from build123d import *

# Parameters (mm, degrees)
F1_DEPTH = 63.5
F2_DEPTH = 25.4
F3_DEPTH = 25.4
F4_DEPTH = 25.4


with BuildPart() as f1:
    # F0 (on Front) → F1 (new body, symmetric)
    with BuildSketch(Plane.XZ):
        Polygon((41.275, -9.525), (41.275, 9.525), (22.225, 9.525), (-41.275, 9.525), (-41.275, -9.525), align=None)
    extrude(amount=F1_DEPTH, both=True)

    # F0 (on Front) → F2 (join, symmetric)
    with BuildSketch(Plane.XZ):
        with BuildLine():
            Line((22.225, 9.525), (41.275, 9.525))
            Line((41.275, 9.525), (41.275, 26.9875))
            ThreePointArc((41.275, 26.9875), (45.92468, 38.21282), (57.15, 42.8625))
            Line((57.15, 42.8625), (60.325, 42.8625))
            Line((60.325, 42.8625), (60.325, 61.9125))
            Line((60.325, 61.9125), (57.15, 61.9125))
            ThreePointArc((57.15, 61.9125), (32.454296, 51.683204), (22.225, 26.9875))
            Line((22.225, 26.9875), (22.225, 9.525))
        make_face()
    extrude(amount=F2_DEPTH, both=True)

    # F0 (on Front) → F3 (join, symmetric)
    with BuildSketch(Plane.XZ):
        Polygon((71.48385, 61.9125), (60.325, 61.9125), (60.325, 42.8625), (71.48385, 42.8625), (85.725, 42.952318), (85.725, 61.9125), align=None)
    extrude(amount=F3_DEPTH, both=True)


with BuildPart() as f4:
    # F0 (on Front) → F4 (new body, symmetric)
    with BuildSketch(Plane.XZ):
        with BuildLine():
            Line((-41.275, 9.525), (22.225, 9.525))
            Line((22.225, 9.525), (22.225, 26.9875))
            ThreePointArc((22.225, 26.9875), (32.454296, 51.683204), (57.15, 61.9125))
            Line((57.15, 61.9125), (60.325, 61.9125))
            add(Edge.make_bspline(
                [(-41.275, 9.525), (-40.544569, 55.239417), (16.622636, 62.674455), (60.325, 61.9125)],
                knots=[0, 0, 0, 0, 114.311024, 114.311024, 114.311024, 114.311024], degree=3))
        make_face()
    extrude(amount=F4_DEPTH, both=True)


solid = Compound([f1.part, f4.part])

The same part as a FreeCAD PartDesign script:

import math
import FreeCAD as App
import Part
import Sketcher
from FreeCAD import Vector
Q = App.Units.Quantity

doc = App.newDocument("Part")
params = doc.addObject("Spreadsheet::Sheet", "Params")
for row, (alias, value) in enumerate([
    ("sketch1_width", "3.25 in"),
    ("sketch1_height", "0.75 in"),
    ("pad1_length", "5 in"),
    ("sketch2_radius", "0.625 in"),
    ("sketch2_radius2", "1.375 in"),
    ("sketch2_width", "0.125 in"),
    ("sketch2_height", "0.6875 in"),
    ("pad2_length", "2 in"),
    ("sketch3_width", "1 in"),
    ("sketch3_height", "0.75 in"),
    ("pad3_length", "2 in"),
    ("sketch4_width", "2.5 in"),
    ("sketch4_radius", "1.375 in"),
    ("pad4_length", "2 in"),
], start=1):
    params.set(f"A{row}", alias)
    params.set(f"B{row}", "=" + value)
    params.setAlias(f"B{row}", alias)

body = doc.addObject("PartDesign::Body", "Body")

# Sketch on XZ plane
sketch1 = body.newObject("Sketcher::SketchObject", "Sketch")
sketch1.AttachmentSupport = (doc.getObject("XZ_Plane"), [""])
sketch1.MapMode = "FlatFace"
sketch1.addGeometry([
    Part.LineSegment(Vector(41.275, -9.525, 0), Vector(41.275, 9.525, 0)),
    Part.LineSegment(Vector(41.275, 9.525, 0), Vector(-41.275, 9.525, 0)),
    Part.LineSegment(Vector(-41.275, 9.525, 0), Vector(-41.275, -9.525, 0)),
    Part.LineSegment(Vector(-41.275, -9.525, 0), Vector(41.275, -9.525, 0)),
], False)
sketch1.addConstraint([
    Sketcher.Constraint("Coincident", 0, 2, 1, 1),
    Sketcher.Constraint("Coincident", 1, 2, 2, 1),
    Sketcher.Constraint("Coincident", 2, 2, 3, 1),
    Sketcher.Constraint("Coincident", 3, 2, 0, 1),
    Sketcher.Constraint("Vertical", 0),
    Sketcher.Constraint("Horizontal", 1),
    Sketcher.Constraint("Vertical", 2),
    Sketcher.Constraint("Horizontal", 3),
    Sketcher.Constraint("Symmetric", 0, 2, 2, 2, -1, 1),
    Sketcher.Constraint("DistanceX", 1, 2, 1, 1, Q("3.25 in")),
    Sketcher.Constraint("DistanceY", 0, 1, 0, 2, Q("0.75 in")),
])
sketch1.setExpression("Constraints[9]", "Params.sketch1_width")
sketch1.setExpression("Constraints[10]", "Params.sketch1_height")
pad1 = body.newObject("PartDesign::Pad", "Pad")
pad1.Profile = sketch1
pad1.setExpression("Length", "Params.pad1_length")
pad1.Midplane = True

# Sketch on XZ plane
sketch2 = body.newObject("Sketcher::SketchObject", "Sketch001")
sketch2.AttachmentSupport = (doc.getObject("XZ_Plane"), [""])
sketch2.MapMode = "FlatFace"
sketch2.addGeometry([
    Part.LineSegment(Vector(22.225, 9.525, 0), Vector(41.275, 9.525, 0)),  # 0
    Part.LineSegment(Vector(41.275, 9.525, 0), Vector(41.275, 26.9875, 0)),  # 1
    Part.ArcOfCircle(Part.Circle(Vector(57.150001, 26.987499, 0), Vector(0, 0, 1), 15.875001), math.radians(90.000002), math.radians(179.999998)),  # 2
    Part.LineSegment(Vector(57.15, 42.8625, 0), Vector(60.325, 42.8625, 0)),  # 3
    Part.LineSegment(Vector(60.325, 42.8625, 0), Vector(60.325, 61.9125, 0)),  # 4
    Part.LineSegment(Vector(60.325, 61.9125, 0), Vector(57.15, 61.9125, 0)),  # 5
    Part.ArcOfCircle(Part.Circle(Vector(57.150001, 26.987499, 0), Vector(0, 0, 1), 34.925001), math.radians(90.000002), math.radians(179.999998)),  # 6
    Part.LineSegment(Vector(22.225, 26.9875, 0), Vector(22.225, 9.525, 0)),  # 7
], False)
sketch2.addConstraint([
    Sketcher.Constraint("Coincident", 0, 2, 1, 1),
    Sketcher.Constraint("Tangent", 1, 2, 2, 2),
    Sketcher.Constraint("Tangent", 2, 1, 3, 1),
    Sketcher.Constraint("Coincident", 3, 2, 4, 1),
    Sketcher.Constraint("Coincident", 4, 2, 5, 1),
    Sketcher.Constraint("Tangent", 5, 2, 6, 1),
    Sketcher.Constraint("Tangent", 6, 2, 7, 1),
    Sketcher.Constraint("Coincident", 7, 2, 0, 1),
    Sketcher.Constraint("Horizontal", 0),
    Sketcher.Constraint("Vertical", 1),
    Sketcher.Constraint("Horizontal", 3),
    Sketcher.Constraint("Vertical", 4),
    Sketcher.Constraint("Horizontal", 5),
    Sketcher.Constraint("Vertical", 7),
    Sketcher.Constraint("Coincident", 6, 3, 2, 3),
    Sketcher.Constraint("Radius", 2, Q("0.625 in")),
    Sketcher.Constraint("Radius", 6, Q("1.375 in")),
    Sketcher.Constraint("DistanceX", 3, 1, 3, 2, Q("0.125 in")),
    Sketcher.Constraint("DistanceY", 1, 1, 1, 2, Q("0.6875 in")),
    Sketcher.Constraint("DistanceX", -1, 1, 2, 3, Q("2.25 in")),
    Sketcher.Constraint("DistanceY", -1, 1, 2, 3, Q("1.0625 in")),
])
sketch2.setExpression("Constraints[15]", "Params.sketch2_radius")
sketch2.setExpression("Constraints[16]", "Params.sketch2_radius2")
sketch2.setExpression("Constraints[17]", "Params.sketch2_width")
sketch2.setExpression("Constraints[18]", "Params.sketch2_height")
pad2 = body.newObject("PartDesign::Pad", "Pad001")
pad2.Profile = sketch2
pad2.setExpression("Length", "Params.pad2_length")
pad2.Midplane = True

# Sketch on XZ plane
sketch3 = body.newObject("Sketcher::SketchObject", "Sketch002")
sketch3.AttachmentSupport = (doc.getObject("XZ_Plane"), [""])
sketch3.MapMode = "FlatFace"
sketch3.addGeometry([
    Part.LineSegment(Vector(60.325, 61.9125, 0), Vector(60.325, 42.8625, 0)),  # 0
    Part.LineSegment(Vector(60.325, 42.8625, 0), Vector(71.48385, 42.8625, 0)),  # 1
    Part.LineSegment(Vector(71.48385, 42.8625, 0), Vector(85.725, 42.952318, 0)),  # 2
    Part.LineSegment(Vector(85.725, 42.952318, 0), Vector(85.725, 61.9125, 0)),  # 3
    Part.LineSegment(Vector(85.725, 61.9125, 0), Vector(60.325, 61.9125, 0)),  # 4
], False)
sketch3.addConstraint([
    Sketcher.Constraint("Coincident", 0, 2, 1, 1),
    Sketcher.Constraint("Coincident", 1, 2, 2, 1),
    Sketcher.Constraint("Coincident", 2, 2, 3, 1),
    Sketcher.Constraint("Coincident", 3, 2, 4, 1),
    Sketcher.Constraint("Coincident", 4, 2, 0, 1),
    Sketcher.Constraint("Vertical", 0),
    Sketcher.Constraint("Horizontal", 1),
    Sketcher.Constraint("Vertical", 3),
    Sketcher.Constraint("Horizontal", 4),
    Sketcher.Constraint("DistanceX", 4, 2, 4, 1, Q("1 in")),
    Sketcher.Constraint("DistanceY", 0, 2, 0, 1, Q("0.75 in")),
    Sketcher.Constraint("DistanceX", -1, 1, 0, 2, Q("2.375 in")),
    Sketcher.Constraint("DistanceY", -1, 1, 0, 2, Q("1.6875 in")),
    Sketcher.Constraint("DistanceX", 1, 1, 1, 2, 11.15885),
    Sketcher.Constraint("DistanceY", 3, 1, 3, 2, 18.960182),
])
sketch3.setExpression("Constraints[9]", "Params.sketch3_width")
sketch3.setExpression("Constraints[10]", "Params.sketch3_height")
pad3 = body.newObject("PartDesign::Pad", "Pad002")
pad3.Profile = sketch3
pad3.setExpression("Length", "Params.pad3_length")
pad3.Midplane = True
body2 = doc.addObject("PartDesign::Body", "Body001")

# Sketch on XZ plane
sketch4 = body2.newObject("Sketcher::SketchObject", "Sketch003")
sketch4.AttachmentSupport = (doc.getObject("XZ_Plane001"), [""])
sketch4.MapMode = "FlatFace"
sketch4.addGeometry([
    Part.LineSegment(Vector(-41.275, 9.525, 0), Vector(22.225, 9.525, 0)),  # 0
    Part.LineSegment(Vector(22.225, 9.525, 0), Vector(22.225, 26.9875, 0)),  # 1
    Part.ArcOfCircle(Part.Circle(Vector(57.150001, 26.987499, 0), Vector(0, 0, 1), 34.925001), math.radians(90.000002), math.radians(179.999998)),  # 2
    Part.LineSegment(Vector(57.15, 61.9125, 0), Vector(60.325, 61.9125, 0)),  # 3
    Part.BSplineCurve([Vector(-41.275, 9.525, 0), Vector(-40.544569, 55.239417, 0), Vector(16.622636, 62.674455, 0), Vector(60.325, 61.9125, 0)], [4, 4], [0, 114.311024], False, 3, [1, 1, 1, 1], False),  # 4
], False)
sketch4.addConstraint([
    Sketcher.Constraint("Block", 4),
    Sketcher.Constraint("Coincident", 0, 2, 1, 1),
    Sketcher.Constraint("Tangent", 1, 2, 2, 2),
    Sketcher.Constraint("Tangent", 2, 1, 3, 1),
    Sketcher.Constraint("Coincident", 3, 2, 4, 2),
    Sketcher.Constraint("Coincident", 4, 1, 0, 1),
    Sketcher.Constraint("Horizontal", 0),
    Sketcher.Constraint("Vertical", 1),
    Sketcher.Constraint("Horizontal", 3),
    Sketcher.Constraint("DistanceX", 0, 1, 0, 2, Q("2.5 in")),
    Sketcher.Constraint("Radius", 2, Q("1.375 in")),
])
sketch4.setExpression("Constraints[9]", "Params.sketch4_width")
sketch4.setExpression("Constraints[10]", "Params.sketch4_radius")
pad4 = body2.newObject("PartDesign::Pad", "Pad003")
pad4.Profile = sketch4
pad4.setExpression("Length", "Params.pad4_length")
pad4.Midplane = True

doc.recompute()
